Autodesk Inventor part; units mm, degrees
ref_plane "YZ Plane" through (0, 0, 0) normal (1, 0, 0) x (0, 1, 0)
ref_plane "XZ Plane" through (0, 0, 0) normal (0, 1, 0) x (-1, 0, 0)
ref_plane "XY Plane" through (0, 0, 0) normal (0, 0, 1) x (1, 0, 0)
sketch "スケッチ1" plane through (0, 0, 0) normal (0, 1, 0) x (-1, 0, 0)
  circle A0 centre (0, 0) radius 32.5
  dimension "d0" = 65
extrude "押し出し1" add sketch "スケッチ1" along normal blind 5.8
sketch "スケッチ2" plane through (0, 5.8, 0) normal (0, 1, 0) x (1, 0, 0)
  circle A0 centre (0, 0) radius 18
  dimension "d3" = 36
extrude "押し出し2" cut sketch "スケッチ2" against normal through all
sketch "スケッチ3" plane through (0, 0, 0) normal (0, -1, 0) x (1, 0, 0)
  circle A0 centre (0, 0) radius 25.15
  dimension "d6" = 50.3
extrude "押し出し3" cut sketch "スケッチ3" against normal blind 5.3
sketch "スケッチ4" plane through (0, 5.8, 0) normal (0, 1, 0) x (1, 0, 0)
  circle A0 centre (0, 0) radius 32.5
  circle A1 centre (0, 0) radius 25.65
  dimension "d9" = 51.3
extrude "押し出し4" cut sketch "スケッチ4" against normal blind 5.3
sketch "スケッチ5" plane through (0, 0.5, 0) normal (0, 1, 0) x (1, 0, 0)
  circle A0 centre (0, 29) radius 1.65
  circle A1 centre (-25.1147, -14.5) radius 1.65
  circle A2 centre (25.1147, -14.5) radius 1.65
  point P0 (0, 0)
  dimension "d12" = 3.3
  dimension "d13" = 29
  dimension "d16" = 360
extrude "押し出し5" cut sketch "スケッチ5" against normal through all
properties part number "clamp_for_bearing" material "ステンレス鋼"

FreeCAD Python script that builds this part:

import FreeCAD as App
import Part
import Sketcher
from FreeCAD import Vector
Q = App.Units.Quantity

doc = App.newDocument("Part")
params = doc.addObject("Spreadsheet::Sheet", "Params")
for row, (alias, value) in enumerate([
    ("sketch1_diameter", "65 mm"),
    ("pad1_length", "5.8 mm"),
    ("sketch2_diameter", "36 mm"),
    ("sketch3_diameter", "50.3 mm"),
    ("pocket2_length", "5.3 mm"),
    ("sketch4_diameter", "51.3 mm"),
    ("sketch4_diameter2", "65 mm"),
    ("pocket3_length", "5.3 mm"),
    ("sketch5_diameter", "3.3 mm"),
], start=1):
    params.set(f"A{row}", alias)
    params.set(f"B{row}", "=" + value)
    params.setAlias(f"B{row}", alias)

body = doc.addObject("PartDesign::Body", "Body")

sketch1 = body.newObject("Sketcher::SketchObject", "Sketch")
sketch1.AttachmentSupport = (doc.getObject("XZ_Plane"), [""])
sketch1.MapMode = "FlatFace"
sketch1.addGeometry(Part.Circle(Vector(0, 0, 0), Vector(0, 0, 1), 32), False)
sketch1.addConstraint([
    Sketcher.Constraint("Coincident", 0, 3, -1, 1),
    Sketcher.Constraint("Diameter", 0, Q("65 mm")),
])
sketch1.setExpression("Constraints[1]", "Params.sketch1_diameter")
pad1 = body.newObject("PartDesign::Pad", "Pad")
pad1.Profile = sketch1
pad1.setExpression("Length", "Params.pad1_length")
pad1.Reversed = True

sketch2 = body.newObject("Sketcher::SketchObject", "Sketch001")
sketch2.AttachmentSupport = (doc.getObject("XZ_Plane"), [""])
sketch2.MapMode = "FlatFace"
sketch2.AttachmentOffset = App.Placement(Vector(0, 0, -5.8), App.Rotation())
sketch2.addGeometry(Part.Circle(Vector(0, 0, 0), Vector(0, 0, 1), 18), False)
sketch2.addConstraint([
    Sketcher.Constraint("Coincident", 0, 3, -1, 1),
    Sketcher.Constraint("Diameter", 0, Q("36 mm")),
])
sketch2.setExpression("Constraints[1]", "Params.sketch2_diameter")
pocket1 = body.newObject("PartDesign::Pocket", "Pocket")
pocket1.Profile = sketch2
pocket1.Type = "ThroughAll"
pocket1.Reversed = True

sketch3 = body.newObject("Sketcher::SketchObject", "Sketch002")
sketch3.AttachmentSupport = (doc.getObject("XZ_Plane"), [""])
sketch3.MapMode = "FlatFace"
sketch3.addGeometry(Part.Circle(Vector(0, 0, 0), Vector(0, 0, 1), 25), False)
sketch3.addConstraint([
    Sketcher.Constraint("Coincident", 0, 3, -1, 1),
    Sketcher.Constraint("Diameter", 0, Q("50.3 mm")),
])
sketch3.setExpression("Constraints[1]", "Params.sketch3_diameter")
pocket2 = body.newObject("PartDesign::Pocket", "Pocket001")
pocket2.Profile = sketch3
pocket2.setExpression("Length", "Params.pocket2_length")

sketch4 = body.newObject("Sketcher::SketchObject", "Sketch003")
sketch4.AttachmentSupport = (doc.getObject("XZ_Plane"), [""])
sketch4.MapMode = "FlatFace"
sketch4.AttachmentOffset = App.Placement(Vector(0, 0, -5.8), App.Rotation())
sketch4.addGeometry([
    Part.Circle(Vector(0, 0, 0), Vector(0, 0, 1), 32),
    Part.Circle(Vector(0, 0, 0), Vector(0, 0, 1), 26),
], False)
sketch4.addConstraint([
    Sketcher.Constraint("Coincident", 0, 3, -1, 1),
    Sketcher.Constraint("Coincident", 1, 3, -1, 1),
    Sketcher.Constraint("Diameter", 1, Q("51.3 mm")),
    Sketcher.Constraint("Diameter", 0, Q("65 mm")),
])
sketch4.setExpression("Constraints[2]", "Params.sketch4_diameter")
sketch4.setExpression("Constraints[3]", "Params.sketch4_diameter2")
pocket3 = body.newObject("PartDesign::Pocket", "Pocket002")
pocket3.Profile = sketch4
pocket3.setExpression("Length", "Params.pocket3_length")
pocket3.Reversed = True

sketch5 = body.newObject("Sketcher::SketchObject", "Sketch004")
sketch5.AttachmentSupport = (doc.getObject("XZ_Plane"), [""])
sketch5.MapMode = "FlatFace"
sketch5.AttachmentOffset = App.Placement(Vector(0, 0, -0.5), App.Rotation())
sketch5.addGeometry([
    Part.Circle(Vector(0, -29, 0), Vector(0, 0, 1), 1.6),
    Part.Circle(Vector(-25.1, 14.5, 0), Vector(0, 0, 1), 1.6),
    Part.Circle(Vector(25.1, 14.5, 0), Vector(0, 0, 1), 1.6),
], False)
sketch5.addConstraint([
    Sketcher.Constraint("Equal", 0, 1),
    Sketcher.Constraint("Equal", 1, 2),
    Sketcher.Constraint("Symmetric", 1, 3, 2, 3, -2),
    Sketcher.Constraint("PointOnObject", 0, 3, -2),
    Sketcher.Constraint("Diameter", 0, Q("3.3 mm")),
    Sketcher.Constraint("DistanceY", 0, 3, -1, 1, Q("29 mm")),
    Sketcher.Constraint("DistanceY", -1, 1, 1, 3, Q("14.5 mm")),
    Sketcher.Constraint("DistanceX", 1, 3, -1, 1, Q("25.1147 mm")),
])
sketch5.setExpression("Constraints[4]", "Params.sketch5_diameter")
pocket4 = body.newObject("PartDesign::Pocket", "Pocket003")
pocket4.Profile = sketch5
pocket4.Type = "ThroughAll"
pocket4.Reversed = True

doc.recompute()
